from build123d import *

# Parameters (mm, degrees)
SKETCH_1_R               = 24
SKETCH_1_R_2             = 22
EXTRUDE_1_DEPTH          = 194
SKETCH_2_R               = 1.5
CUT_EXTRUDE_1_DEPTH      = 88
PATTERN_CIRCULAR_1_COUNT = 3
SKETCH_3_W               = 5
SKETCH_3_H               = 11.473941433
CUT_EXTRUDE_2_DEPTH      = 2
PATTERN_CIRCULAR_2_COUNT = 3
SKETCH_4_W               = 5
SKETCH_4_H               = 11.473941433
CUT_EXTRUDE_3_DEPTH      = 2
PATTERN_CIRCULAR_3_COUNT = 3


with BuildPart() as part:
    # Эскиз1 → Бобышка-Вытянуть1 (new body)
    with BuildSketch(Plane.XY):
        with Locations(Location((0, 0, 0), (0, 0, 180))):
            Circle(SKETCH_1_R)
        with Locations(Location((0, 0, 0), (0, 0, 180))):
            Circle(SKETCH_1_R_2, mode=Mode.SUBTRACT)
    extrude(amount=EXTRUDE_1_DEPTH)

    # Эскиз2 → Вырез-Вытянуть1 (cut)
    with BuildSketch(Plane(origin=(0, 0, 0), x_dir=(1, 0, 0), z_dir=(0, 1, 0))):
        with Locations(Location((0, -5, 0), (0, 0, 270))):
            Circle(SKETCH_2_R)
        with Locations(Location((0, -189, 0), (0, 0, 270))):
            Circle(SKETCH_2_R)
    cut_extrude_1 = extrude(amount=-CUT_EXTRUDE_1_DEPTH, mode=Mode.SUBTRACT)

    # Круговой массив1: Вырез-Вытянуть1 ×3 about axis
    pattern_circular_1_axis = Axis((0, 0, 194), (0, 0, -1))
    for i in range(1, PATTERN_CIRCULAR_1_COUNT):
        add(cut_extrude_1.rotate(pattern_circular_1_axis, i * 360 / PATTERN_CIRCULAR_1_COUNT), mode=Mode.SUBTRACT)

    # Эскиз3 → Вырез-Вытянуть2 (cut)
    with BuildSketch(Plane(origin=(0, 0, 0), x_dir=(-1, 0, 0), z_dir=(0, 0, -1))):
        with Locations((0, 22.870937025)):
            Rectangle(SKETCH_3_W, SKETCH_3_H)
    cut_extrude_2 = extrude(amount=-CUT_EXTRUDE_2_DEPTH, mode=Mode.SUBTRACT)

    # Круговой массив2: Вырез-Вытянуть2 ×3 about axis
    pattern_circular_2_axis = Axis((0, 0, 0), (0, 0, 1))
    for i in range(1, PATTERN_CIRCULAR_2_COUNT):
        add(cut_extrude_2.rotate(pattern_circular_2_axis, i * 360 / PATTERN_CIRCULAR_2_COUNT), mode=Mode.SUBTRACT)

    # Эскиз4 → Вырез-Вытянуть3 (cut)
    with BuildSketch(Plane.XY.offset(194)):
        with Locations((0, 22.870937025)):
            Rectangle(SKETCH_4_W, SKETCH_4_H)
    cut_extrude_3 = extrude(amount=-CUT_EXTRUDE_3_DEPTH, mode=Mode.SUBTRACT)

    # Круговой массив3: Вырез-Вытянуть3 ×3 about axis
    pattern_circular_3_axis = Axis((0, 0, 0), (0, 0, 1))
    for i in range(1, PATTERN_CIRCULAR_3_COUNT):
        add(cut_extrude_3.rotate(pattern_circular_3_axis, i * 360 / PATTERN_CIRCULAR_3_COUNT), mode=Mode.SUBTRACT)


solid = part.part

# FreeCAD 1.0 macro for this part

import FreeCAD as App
import Part
import Sketcher

V = App.Vector

doc = App.newDocument("Part")
body = doc.addObject("PartDesign::Body", "Body")

# Sketch on XY plane
sketch1 = body.newObject("Sketcher::SketchObject", "Sketch")
sketch1.AttachmentSupport = (doc.getObject("XY_Plane"), [""])
sketch1.MapMode = "FlatFace"
sketch1.addGeometry(Part.Circle(V(0, 0, 0), V(0, 0, 1), 24), False)
sketch1.addGeometry(Part.Circle(V(0, 0, 0), V(0, 0, 1), 22), False)
sketch1.addConstraint(Sketcher.Constraint("Coincident", 0, 3, -1, 1))
sketch1.addConstraint(Sketcher.Constraint("Coincident", 1, 3, -1, 1))
sketch1.addConstraint(Sketcher.Constraint("Diameter", 0, 48.0))
sketch1.addConstraint(Sketcher.Constraint("Diameter", 1, 44.0))
pad1 = body.newObject("PartDesign::Pad", "Pad")
pad1.Profile = sketch1
pad1.Length = 194

# Sketch on XZ plane
sketch2 = body.newObject("Sketcher::SketchObject", "Sketch001")
sketch2.AttachmentSupport = (doc.getObject("XZ_Plane"), [""])
sketch2.MapMode = "FlatFace"
sketch2.addGeometry(Part.Circle(V(0, 5, 0), V(0, 0, 1), 1.5), False)
sketch2.addGeometry(Part.Circle(V(0, 189, 0), V(0, 0, 1), 1.5), False)
sketch2.addConstraint(Sketcher.Constraint("Equal", 0, 1))
sketch2.addConstraint(Sketcher.Constraint("PointOnObject", 0, 3, -2))
sketch2.addConstraint(Sketcher.Constraint("PointOnObject", 1, 3, -2))
sketch2.addConstraint(Sketcher.Constraint("Diameter", 0, 3.0))
sketch2.addConstraint(Sketcher.Constraint("DistanceY", -1, 1, 0, 3, 5.0))
sketch2.addConstraint(Sketcher.Constraint("DistanceY", -1, 1, 1, 3, 189.0))
pocket1 = body.newObject("PartDesign::Pocket", "Pocket")
pocket1.Profile = sketch2
pocket1.Length = 88
pocket1.Reversed = True
doc.recompute()

polarpattern = body.newObject("PartDesign::PolarPattern", "PolarPattern")
polarpattern.Originals = [pocket1]
polarpattern.Axis = (doc.getObject("Z_Axis"), [""])
polarpattern.Angle = 360
polarpattern.Occurrences = 3
body.Tip = polarpattern

# Sketch on XY plane
sketch3 = body.newObject("Sketcher::SketchObject", "Sketch002")
sketch3.AttachmentSupport = (doc.getObject("XY_Plane"), [""])
sketch3.MapMode = "FlatFace"
sketch3.addGeometry(Part.LineSegment(V(2.5, 28.607908, 0), V(2.5, 17.133966, 0)), False)
sketch3.addGeometry(Part.LineSegment(V(2.5, 17.133966, 0), V(-2.5, 17.133966, 0)), False)
sketch3.addGeometry(Part.LineSegment(V(-2.5, 17.133966, 0), V(-2.5, 28.607908, 0)), False)
sketch3.addGeometry(Part.LineSegment(V(-2.5, 28.607908, 0), V(2.5, 28.607908, 0)), False)
sketch3.addConstraint(Sketcher.Constraint("Coincident", 0, 2, 1, 1))
sketch3.addConstraint(Sketcher.Constraint("Coincident", 1, 2, 2, 1))
sketch3.addConstraint(Sketcher.Constraint("Coincident", 2, 2, 3, 1))
sketch3.addConstraint(Sketcher.Constraint("Coincident", 3, 2, 0, 1))
sketch3.addConstraint(Sketcher.Constraint("Vertical", 0))
sketch3.addConstraint(Sketcher.Constraint("Horizontal", 1))
sketch3.addConstraint(Sketcher.Constraint("Vertical", 2))
sketch3.addConstraint(Sketcher.Constraint("Horizontal", 3))
sketch3.addConstraint(Sketcher.Constraint("DistanceX", 1, 2, 1, 1, 5.0))
sketch3.addConstraint(Sketcher.Constraint("DistanceX", -1, 1, 0, 2, 2.5))
sketch3.addConstraint(Sketcher.Constraint("DistanceY", 0, 2, 0, 1, 11.473941))
sketch3.addConstraint(Sketcher.Constraint("DistanceY", -1, 1, 0, 2, 17.133966))
pocket2 = body.newObject("PartDesign::Pocket", "Pocket001")
pocket2.Profile = sketch3
pocket2.Length = 2
pocket2.Reversed = True
doc.recompute()

polarpattern2 = body.newObject("PartDesign::PolarPattern", "PolarPattern001")
polarpattern2.Originals = [pocket2]
polarpattern2.Axis = (doc.getObject("Z_Axis"), [""])
polarpattern2.Angle = 360
polarpattern2.Occurrences = 3
body.Tip = polarpattern2

# Sketch on XY plane
sketch4 = body.newObject("Sketcher::SketchObject", "Sketch003")
sketch4.AttachmentSupport = (doc.getObject("XY_Plane"), [""])
sketch4.MapMode = "FlatFace"
sketch4.AttachmentOffset = App.Placement(V(0, 0, 194), App.Rotation())
sketch4.addGeometry(Part.LineSegment(V(-2.5, 28.607908, 0), V(-2.5, 17.133966, 0)), False)
sketch4.addGeometry(Part.LineSegment(V(-2.5, 17.133966, 0), V(2.5, 17.133966, 0)), False)
sketch4.addGeometry(Part.LineSegment(V(2.5, 17.133966, 0), V(2.5, 28.607908, 0)), False)
sketch4.addGeometry(Part.LineSegment(V(2.5, 28.607908, 0), V(-2.5, 28.607908, 0)), False)
sketch4.addConstraint(Sketcher.Constraint("Coincident", 0, 2, 1, 1))
sketch4.addConstraint(Sketcher.Constraint("Coincident", 1, 2, 2, 1))
sketch4.addConstraint(Sketcher.Constraint("Coincident", 2, 2, 3, 1))
sketch4.addConstraint(Sketcher.Constraint("Coincident", 3, 2, 0, 1))
sketch4.addConstraint(Sketcher.Constraint("Vertical", 0))
sketch4.addConstraint(Sketcher.Constraint("Horizontal", 1))
sketch4.addConstraint(Sketcher.Constraint("Vertical", 2))
sketch4.addConstraint(Sketcher.Constraint("Horizontal", 3))
sketch4.addConstraint(Sketcher.Constraint("DistanceX", 1, 1, 1, 2, 5.0))
sketch4.addConstraint(Sketcher.Constraint("DistanceX", 0, 2, -1, 1, 2.5))
sketch4.addConstraint(Sketcher.Constraint("DistanceY", 0, 2, 0, 1, 11.473941))
sketch4.addConstraint(Sketcher.Constraint("DistanceY", -1, 1, 0, 2, 17.133966))
pocket3 = body.newObject("PartDesign::Pocket", "Pocket002")
pocket3.Profile = sketch4
pocket3.Length = 2
doc.recompute()

polarpattern3 = body.newObject("PartDesign::PolarPattern", "PolarPattern002")
polarpattern3.Originals = [pocket3]
polarpattern3.Axis = (doc.getObject("Z_Axis"), [""])
polarpattern3.Angle = 360
polarpattern3.Occurrences = 3
body.Tip = polarpattern3

doc.recompute()
